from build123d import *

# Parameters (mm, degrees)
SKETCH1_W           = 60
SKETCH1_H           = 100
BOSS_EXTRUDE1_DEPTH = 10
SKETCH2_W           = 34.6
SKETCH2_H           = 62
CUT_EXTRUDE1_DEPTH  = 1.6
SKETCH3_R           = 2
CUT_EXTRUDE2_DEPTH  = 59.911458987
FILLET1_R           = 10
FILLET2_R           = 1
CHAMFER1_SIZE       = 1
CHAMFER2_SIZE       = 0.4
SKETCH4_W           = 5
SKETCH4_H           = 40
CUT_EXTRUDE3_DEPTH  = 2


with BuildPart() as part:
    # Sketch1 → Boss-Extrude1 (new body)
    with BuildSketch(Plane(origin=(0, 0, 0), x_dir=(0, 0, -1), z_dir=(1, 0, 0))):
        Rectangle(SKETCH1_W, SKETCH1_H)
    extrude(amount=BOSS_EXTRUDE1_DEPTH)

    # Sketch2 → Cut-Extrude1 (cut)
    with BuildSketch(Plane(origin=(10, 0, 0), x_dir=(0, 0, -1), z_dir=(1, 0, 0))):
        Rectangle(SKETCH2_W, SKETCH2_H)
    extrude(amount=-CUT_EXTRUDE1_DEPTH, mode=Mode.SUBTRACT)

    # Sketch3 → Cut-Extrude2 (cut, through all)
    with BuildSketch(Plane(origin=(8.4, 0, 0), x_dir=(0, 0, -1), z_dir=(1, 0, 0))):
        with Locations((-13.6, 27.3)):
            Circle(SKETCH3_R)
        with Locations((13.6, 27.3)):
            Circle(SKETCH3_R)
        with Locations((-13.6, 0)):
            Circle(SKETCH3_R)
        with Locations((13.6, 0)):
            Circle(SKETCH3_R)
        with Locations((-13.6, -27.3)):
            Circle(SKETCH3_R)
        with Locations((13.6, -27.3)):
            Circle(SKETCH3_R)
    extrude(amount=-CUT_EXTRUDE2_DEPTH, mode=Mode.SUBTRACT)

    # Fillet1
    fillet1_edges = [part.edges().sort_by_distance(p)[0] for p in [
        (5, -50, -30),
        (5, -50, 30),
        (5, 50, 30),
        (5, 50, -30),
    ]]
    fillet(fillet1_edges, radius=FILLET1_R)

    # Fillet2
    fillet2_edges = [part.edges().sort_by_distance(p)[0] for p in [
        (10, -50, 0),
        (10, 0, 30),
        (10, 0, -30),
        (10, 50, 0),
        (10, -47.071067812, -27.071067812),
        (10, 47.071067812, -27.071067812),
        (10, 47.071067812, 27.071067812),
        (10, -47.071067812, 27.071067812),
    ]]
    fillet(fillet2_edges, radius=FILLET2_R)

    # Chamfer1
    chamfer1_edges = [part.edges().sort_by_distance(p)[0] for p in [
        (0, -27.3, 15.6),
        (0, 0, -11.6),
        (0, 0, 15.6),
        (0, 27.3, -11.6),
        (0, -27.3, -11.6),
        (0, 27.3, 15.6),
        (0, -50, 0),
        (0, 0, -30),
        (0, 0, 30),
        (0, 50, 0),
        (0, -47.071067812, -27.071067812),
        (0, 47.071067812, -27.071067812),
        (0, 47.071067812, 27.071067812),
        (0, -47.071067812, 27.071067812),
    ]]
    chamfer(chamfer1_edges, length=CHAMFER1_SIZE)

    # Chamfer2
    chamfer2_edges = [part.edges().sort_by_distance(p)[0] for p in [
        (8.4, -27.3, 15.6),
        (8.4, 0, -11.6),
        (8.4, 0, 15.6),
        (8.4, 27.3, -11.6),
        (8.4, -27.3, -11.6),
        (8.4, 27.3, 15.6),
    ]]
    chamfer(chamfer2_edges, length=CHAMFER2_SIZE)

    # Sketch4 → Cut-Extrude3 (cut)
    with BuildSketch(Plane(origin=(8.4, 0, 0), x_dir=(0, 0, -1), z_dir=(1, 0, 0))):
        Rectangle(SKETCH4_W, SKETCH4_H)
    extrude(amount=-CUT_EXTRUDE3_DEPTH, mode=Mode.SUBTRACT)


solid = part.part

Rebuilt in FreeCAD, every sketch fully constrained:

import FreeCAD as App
import Part
import Sketcher
from FreeCAD import Vector
Q = App.Units.Quantity


def edges_at(feature, points):
    """Names of the edges that pass closest to the given points."""
    edges = feature.Shape.Edges
    near = lambda p: min(range(len(edges)), key=lambda i: edges[i].distToShape(Part.Vertex(*p))[0])
    return sorted({f"Edge{near(p) + 1}" for p in points})


def add_polygon(sketch, points):
    """Adds a closed chain of lines whose ends are joined by coincident constraints."""
    first, n = sketch.GeometryCount, len(points)
    for a, b in zip(points, points[1:] + points[:1]):
        sketch.addGeometry(Part.LineSegment(App.Vector(*a, 0), App.Vector(*b, 0)), False)
    for i in range(n):
        sketch.addConstraint(Sketcher.Constraint("Coincident", first + i, 2, first + (i + 1) % n, 1))

doc = App.newDocument("Part")
body = doc.addObject("PartDesign::Body", "Body")

sketch1 = doc.addObject("Sketcher::SketchObject", "Sketch")
body.addObject(sketch1)
sketch1.AttachmentSupport = (doc.YZ_Plane, [""])
sketch1.MapMode = "FlatFace"
add_polygon(sketch1, [(50, 30), (-50, 30), (-50, -30), (50, -30)])
sketch1.addConstraint(Sketcher.Constraint("Horizontal", 0))
sketch1.addConstraint(Sketcher.Constraint("Vertical", 1))
sketch1.addConstraint(Sketcher.Constraint("Horizontal", 2))
sketch1.addConstraint(Sketcher.Constraint("Vertical", 3))
sketch1.addConstraint(Sketcher.Constraint("Symmetric", 0, 2, 2, 2, -1, 1))
sketch1.addConstraint(Sketcher.Constraint("DistanceX", 0, 2, 0, 1, Q("100 mm")))
sketch1.addConstraint(Sketcher.Constraint("DistanceY", 1, 2, 1, 1, Q("60 mm")))
pad1 = doc.addObject("PartDesign::Pad", "Pad")
body.addObject(pad1)
pad1.Profile = sketch1
pad1.Length = 10

sketch2 = doc.addObject("Sketcher::SketchObject", "Sketch001")
body.addObject(sketch2)
sketch2.AttachmentSupport = (doc.YZ_Plane, [""])
sketch2.MapMode = "FlatFace"
sketch2.AttachmentOffset = App.Placement(Vector(0, 0, 10), App.Rotation())
add_polygon(sketch2, [(31, 17), (-31, 17), (-31, -17), (31, -17)])
sketch2.addConstraint(Sketcher.Constraint("Horizontal", 0))
sketch2.addConstraint(Sketcher.Constraint("Vertical", 1))
sketch2.addConstraint(Sketcher.Constraint("Horizontal", 2))
sketch2.addConstraint(Sketcher.Constraint("Vertical", 3))
sketch2.addConstraint(Sketcher.Constraint("Symmetric", 0, 2, 2, 2, -1, 1))
sketch2.addConstraint(Sketcher.Constraint("DistanceX", 0, 2, 0, 1, Q("62 mm")))
sketch2.addConstraint(Sketcher.Constraint("DistanceY", 1, 2, 1, 1, Q("34.6 mm")))
pocket1 = doc.addObject("PartDesign::Pocket", "Pocket")
body.addObject(pocket1)
pocket1.Profile = sketch2
pocket1.Length = 1.6

sketch3 = doc.addObject("Sketcher::SketchObject", "Sketch002")
body.addObject(sketch3)
sketch3.AttachmentSupport = (doc.YZ_Plane, [""])
sketch3.MapMode = "FlatFace"
sketch3.AttachmentOffset = App.Placement(Vector(0, 0, 8.4), App.Rotation())
sketch3.addGeometry(Part.Circle(Vector(27.3, 13.6, 0), Vector(0, 0, 1), 2), False)
sketch3.addGeometry(Part.Circle(Vector(27.3, -13.6, 0), Vector(0, 0, 1), 2), False)
sketch3.addGeometry(Part.Circle(Vector(0, 13.6, 0), Vector(0, 0, 1), 2), False)
sketch3.addGeometry(Part.Circle(Vector(0, -13.6, 0), Vector(0, 0, 1), 2), False)
sketch3.addGeometry(Part.Circle(Vector(-27.3, 13.6, 0), Vector(0, 0, 1), 2), False)
sketch3.addGeometry(Part.Circle(Vector(-27.3, -13.6, 0), Vector(0, 0, 1), 2), False)
sketch3.addConstraint(Sketcher.Constraint("Equal", 0, 1))
sketch3.addConstraint(Sketcher.Constraint("Equal", 1, 2))
sketch3.addConstraint(Sketcher.Constraint("Equal", 2, 3))
sketch3.addConstraint(Sketcher.Constraint("Equal", 3, 4))
sketch3.addConstraint(Sketcher.Constraint("Equal", 4, 5))
sketch3.addConstraint(Sketcher.Constraint("Symmetric", 2, 3, 3, 3, -1, 1))
sketch3.addConstraint(Sketcher.Constraint("Symmetric", 1, 3, 4, 3, -1, 1))
sketch3.addConstraint(Sketcher.Constraint("Symmetric", 0, 3, 5, 3, -1, 1))
sketch3.addConstraint(Sketcher.Constraint("Symmetric", 0, 3, 4, 3, -2))
sketch3.addConstraint(Sketcher.Constraint("PointOnObject", 2, 3, -2))
sketch3.addConstraint(Sketcher.Constraint("Horizontal", 0, 3, 2, 3))
sketch3.addConstraint(Sketcher.Constraint("Diameter", 0, Q("4 mm")))
sketch3.addConstraint(Sketcher.Constraint("DistanceX", -1, 1, 0, 3, Q("27.3 mm")))
sketch3.addConstraint(Sketcher.Constraint("DistanceY", -1, 1, 0, 3, Q("13.6 mm")))
pocket2 = doc.addObject("PartDesign::Pocket", "Pocket001")
body.addObject(pocket2)
pocket2.Profile = sketch3
pocket2.Type = "ThroughAll"
doc.recompute()

fillet = doc.addObject("PartDesign::Fillet", "Fillet")
body.addObject(fillet)
fillet.Base = (pocket2, edges_at(pocket2, [
    (5, -50, -30),
    (5, -50, 30),
    (5, 50, 30),
    (5, 50, -30),
]))
fillet.Radius = 10
doc.recompute()

fillet2 = doc.addObject("PartDesign::Fillet", "Fillet001")
body.addObject(fillet2)
fillet2.Base = (fillet, edges_at(fillet, [
    (10, -50, 0),
    (10, 0, 30),
    (10, 0, -30),
    (10, 50, 0),
    (10, -47.071, -27.071),
    (10, 47.071, -27.071),
    (10, 47.071, 27.071),
    (10, -47.071, 27.071),
]))
fillet2.Radius = 1
doc.recompute()

chamfer = doc.addObject("PartDesign::Chamfer", "Chamfer")
body.addObject(chamfer)
chamfer.Base = (fillet2, edges_at(fillet2, [
    (0, -27.3, 15.6),
    (0, 0, -11.6),
    (0, 0, 15.6),
    (0, 27.3, -11.6),
    (0, -27.3, -11.6),
    (0, 27.3, 15.6),
    (0, -50, 0),
    (0, 0, -30),
    (0, 0, 30),
    (0, 50, 0),
    (0, -47.071, -27.071),
    (0, 47.071, -27.071),
    (0, 47.071, 27.071),
    (0, -47.071, 27.071),
]))
chamfer.Size = 1
doc.recompute()

chamfer2 = doc.addObject("PartDesign::Chamfer", "Chamfer001")
body.addObject(chamfer2)
chamfer2.Base = (chamfer, edges_at(chamfer, [
    (8.4, -27.3, 15.6),
    (8.4, 0, -11.6),
    (8.4, 0, 15.6),
    (8.4, 27.3, -11.6),
    (8.4, -27.3, -11.6),
    (8.4, 27.3, 15.6),
]))
chamfer2.Size = 0.4

sketch4 = doc.addObject("Sketcher::SketchObject", "Sketch003")
body.addObject(sketch4)
sketch4.AttachmentSupport = (doc.YZ_Plane, [""])
sketch4.MapMode = "FlatFace"
sketch4.AttachmentOffset = App.Placement(Vector(0, 0, 8.4), App.Rotation())
add_polygon(sketch4, [(20, 2), (-20, 2), (-20, -2), (20, -2)])
sketch4.addConstraint(Sketcher.Constraint("Horizontal", 0))
sketch4.addConstraint(Sketcher.Constraint("Vertical", 1))
sketch4.addConstraint(Sketcher.Constraint("Horizontal", 2))
sketch4.addConstraint(Sketcher.Constraint("Vertical", 3))
sketch4.addConstraint(Sketcher.Constraint("Symmetric", 0, 2, 2, 2, -1, 1))
sketch4.addConstraint(Sketcher.Constraint("DistanceX", 0, 2, 0, 1, Q("40 mm")))
sketch4.addConstraint(Sketcher.Constraint("DistanceY", 1, 2, 1, 1, Q("5 mm")))
pocket3 = doc.addObject("PartDesign::Pocket", "Pocket002")
body.addObject(pocket3)
pocket3.Profile = sketch4
pocket3.Length = 2

doc.recompute()
